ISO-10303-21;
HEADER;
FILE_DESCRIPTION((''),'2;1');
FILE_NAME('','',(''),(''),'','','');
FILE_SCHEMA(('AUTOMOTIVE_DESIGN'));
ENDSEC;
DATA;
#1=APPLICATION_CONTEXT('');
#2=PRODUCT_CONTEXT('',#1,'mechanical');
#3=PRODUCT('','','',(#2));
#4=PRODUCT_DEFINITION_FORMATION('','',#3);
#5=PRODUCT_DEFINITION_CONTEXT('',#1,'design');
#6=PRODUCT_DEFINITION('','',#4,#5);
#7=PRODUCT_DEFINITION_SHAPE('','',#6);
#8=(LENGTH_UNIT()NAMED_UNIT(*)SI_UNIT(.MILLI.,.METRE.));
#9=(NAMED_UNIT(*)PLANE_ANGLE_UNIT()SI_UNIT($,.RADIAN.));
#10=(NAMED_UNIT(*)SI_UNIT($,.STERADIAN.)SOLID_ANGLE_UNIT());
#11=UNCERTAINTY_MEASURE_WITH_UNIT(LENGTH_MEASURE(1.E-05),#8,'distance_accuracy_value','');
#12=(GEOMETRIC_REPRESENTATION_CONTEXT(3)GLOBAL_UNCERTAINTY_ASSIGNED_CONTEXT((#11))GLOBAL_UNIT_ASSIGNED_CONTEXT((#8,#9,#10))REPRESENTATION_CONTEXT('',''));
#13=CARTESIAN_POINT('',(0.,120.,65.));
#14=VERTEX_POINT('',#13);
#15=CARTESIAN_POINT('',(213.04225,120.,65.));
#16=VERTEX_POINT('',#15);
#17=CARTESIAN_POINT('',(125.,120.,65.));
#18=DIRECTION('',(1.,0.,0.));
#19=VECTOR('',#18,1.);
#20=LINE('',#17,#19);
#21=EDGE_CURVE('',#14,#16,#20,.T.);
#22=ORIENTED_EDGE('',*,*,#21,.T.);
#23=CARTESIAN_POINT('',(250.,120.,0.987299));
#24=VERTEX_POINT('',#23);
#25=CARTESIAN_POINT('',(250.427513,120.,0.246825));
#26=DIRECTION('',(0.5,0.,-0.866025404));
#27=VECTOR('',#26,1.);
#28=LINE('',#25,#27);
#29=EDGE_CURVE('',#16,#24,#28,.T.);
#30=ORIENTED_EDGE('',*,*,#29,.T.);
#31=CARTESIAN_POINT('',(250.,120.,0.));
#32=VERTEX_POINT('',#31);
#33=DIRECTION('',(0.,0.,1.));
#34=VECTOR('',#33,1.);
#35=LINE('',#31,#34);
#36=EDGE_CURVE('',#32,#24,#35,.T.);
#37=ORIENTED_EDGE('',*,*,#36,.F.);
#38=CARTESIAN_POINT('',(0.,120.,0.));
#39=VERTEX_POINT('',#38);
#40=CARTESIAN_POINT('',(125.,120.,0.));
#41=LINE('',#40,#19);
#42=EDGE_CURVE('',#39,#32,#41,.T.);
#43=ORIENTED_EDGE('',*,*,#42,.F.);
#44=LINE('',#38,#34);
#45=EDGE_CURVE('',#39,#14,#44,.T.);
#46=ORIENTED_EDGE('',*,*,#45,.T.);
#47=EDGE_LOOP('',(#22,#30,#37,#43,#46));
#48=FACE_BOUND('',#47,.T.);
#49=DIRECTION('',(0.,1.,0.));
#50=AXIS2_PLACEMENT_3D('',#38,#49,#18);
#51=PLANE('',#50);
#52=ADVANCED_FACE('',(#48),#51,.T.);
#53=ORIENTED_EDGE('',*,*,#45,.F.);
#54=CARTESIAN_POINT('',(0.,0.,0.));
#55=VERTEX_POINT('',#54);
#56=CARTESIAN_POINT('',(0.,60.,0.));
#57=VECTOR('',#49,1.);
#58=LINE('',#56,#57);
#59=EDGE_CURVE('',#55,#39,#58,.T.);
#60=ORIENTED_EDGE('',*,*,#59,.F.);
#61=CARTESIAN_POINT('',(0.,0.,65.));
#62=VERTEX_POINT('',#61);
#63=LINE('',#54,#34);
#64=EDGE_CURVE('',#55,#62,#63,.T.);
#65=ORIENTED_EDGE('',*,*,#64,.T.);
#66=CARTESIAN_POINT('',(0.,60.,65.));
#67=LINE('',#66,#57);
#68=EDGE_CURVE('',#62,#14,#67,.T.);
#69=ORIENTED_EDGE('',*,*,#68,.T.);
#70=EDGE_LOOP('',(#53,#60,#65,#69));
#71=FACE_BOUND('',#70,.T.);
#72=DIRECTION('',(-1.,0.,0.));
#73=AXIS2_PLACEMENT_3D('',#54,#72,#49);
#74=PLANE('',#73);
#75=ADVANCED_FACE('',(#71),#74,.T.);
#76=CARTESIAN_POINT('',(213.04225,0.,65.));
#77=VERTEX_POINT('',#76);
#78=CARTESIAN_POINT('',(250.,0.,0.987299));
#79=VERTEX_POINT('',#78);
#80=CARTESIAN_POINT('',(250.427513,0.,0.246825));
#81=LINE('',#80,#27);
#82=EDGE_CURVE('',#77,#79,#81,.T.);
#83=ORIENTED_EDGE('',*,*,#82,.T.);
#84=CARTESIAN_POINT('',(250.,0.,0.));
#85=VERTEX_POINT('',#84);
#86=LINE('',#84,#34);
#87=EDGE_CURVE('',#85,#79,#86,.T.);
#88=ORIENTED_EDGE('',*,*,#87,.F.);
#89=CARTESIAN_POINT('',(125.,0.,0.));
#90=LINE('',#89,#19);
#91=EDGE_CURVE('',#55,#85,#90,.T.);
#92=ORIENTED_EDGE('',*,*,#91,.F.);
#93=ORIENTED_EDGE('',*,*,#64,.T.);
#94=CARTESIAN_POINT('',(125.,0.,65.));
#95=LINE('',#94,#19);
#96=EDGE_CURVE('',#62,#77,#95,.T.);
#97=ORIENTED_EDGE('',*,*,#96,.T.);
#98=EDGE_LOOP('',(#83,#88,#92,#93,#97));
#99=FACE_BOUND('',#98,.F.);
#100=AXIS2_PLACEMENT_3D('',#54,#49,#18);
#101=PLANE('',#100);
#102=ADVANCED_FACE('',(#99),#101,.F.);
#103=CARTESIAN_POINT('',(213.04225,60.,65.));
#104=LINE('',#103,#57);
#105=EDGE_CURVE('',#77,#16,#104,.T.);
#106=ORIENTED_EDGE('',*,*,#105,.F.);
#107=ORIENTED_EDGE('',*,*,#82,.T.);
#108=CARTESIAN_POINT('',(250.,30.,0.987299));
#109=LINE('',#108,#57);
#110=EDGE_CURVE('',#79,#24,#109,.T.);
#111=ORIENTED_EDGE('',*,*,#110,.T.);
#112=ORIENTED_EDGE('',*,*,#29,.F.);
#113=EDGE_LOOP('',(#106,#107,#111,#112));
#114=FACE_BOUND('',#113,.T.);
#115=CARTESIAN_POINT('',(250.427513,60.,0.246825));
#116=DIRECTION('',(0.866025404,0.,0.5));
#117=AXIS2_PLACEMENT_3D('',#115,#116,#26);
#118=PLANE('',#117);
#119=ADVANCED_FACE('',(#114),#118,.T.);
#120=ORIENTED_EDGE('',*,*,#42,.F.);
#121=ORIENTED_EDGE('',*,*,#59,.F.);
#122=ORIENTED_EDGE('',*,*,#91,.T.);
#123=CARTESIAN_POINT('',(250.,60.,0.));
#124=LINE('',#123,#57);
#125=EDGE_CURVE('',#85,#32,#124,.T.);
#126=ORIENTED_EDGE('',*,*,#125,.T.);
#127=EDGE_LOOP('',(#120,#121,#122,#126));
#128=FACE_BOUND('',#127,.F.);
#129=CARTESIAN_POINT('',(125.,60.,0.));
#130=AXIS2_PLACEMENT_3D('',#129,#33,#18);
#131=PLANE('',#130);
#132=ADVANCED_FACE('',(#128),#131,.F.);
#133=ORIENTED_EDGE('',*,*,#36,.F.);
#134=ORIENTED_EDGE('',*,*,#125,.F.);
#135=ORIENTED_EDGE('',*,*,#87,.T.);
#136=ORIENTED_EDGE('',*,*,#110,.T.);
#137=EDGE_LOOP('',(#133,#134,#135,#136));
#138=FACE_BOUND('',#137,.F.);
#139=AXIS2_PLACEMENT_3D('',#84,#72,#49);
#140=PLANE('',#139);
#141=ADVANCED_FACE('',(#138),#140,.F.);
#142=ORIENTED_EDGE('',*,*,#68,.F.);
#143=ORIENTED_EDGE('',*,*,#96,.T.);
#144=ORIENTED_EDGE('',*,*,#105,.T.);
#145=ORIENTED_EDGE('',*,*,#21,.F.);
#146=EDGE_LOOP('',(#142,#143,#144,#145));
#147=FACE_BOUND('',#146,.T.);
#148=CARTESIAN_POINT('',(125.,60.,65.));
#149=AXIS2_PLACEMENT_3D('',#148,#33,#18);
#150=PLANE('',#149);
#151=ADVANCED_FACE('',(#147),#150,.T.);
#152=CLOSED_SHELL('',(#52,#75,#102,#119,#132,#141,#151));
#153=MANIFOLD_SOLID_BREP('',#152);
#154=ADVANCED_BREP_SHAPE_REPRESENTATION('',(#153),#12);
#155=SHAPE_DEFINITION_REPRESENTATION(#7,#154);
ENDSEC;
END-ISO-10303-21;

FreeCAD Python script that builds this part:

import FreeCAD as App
import Part
import Sketcher

V = App.Vector
Q = App.Units.Quantity


def add_polygon(sketch, points):
    """Adds a closed chain of lines whose ends are joined by coincident constraints."""
    first, n = sketch.GeometryCount, len(points)
    for a, b in zip(points, points[1:] + points[:1]):
        sketch.addGeometry(Part.LineSegment(App.Vector(*a, 0), App.Vector(*b, 0)), False)
    for i in range(n):
        sketch.addConstraint(Sketcher.Constraint("Coincident", first + i, 2, first + (i + 1) % n, 1))

doc = App.newDocument("Part")
body = doc.addObject("PartDesign::Body", "Body")

# Sketch on XY plane
sketch1 = body.newObject("Sketcher::SketchObject", "Sketch")
sketch1.AttachmentSupport = (doc.getObject("XY_Plane"), [""])
sketch1.MapMode = "FlatFace"
add_polygon(sketch1, [(0, 120), (0, 0), (250, 0), (250, 120)])  # lines 0-3
sketch1.addConstraint([
    Sketcher.Constraint("Vertical", 0),
    Sketcher.Constraint("Horizontal", 1),
    Sketcher.Constraint("Vertical", 2),
    Sketcher.Constraint("Horizontal", 3),
    Sketcher.Constraint("Coincident", 0, 2, -1, 1),
    Sketcher.Constraint("DistanceX", 1, 1, 1, 2, Q("250 mm")),
    Sketcher.Constraint("DistanceY", 0, 2, 0, 1, Q("120 mm")),
])
pad1 = body.newObject("PartDesign::Pad", "Pad")
pad1.Profile = sketch1
pad1.Length = 65
body2 = doc.addObject("PartDesign::Body", "Body001")
doc.recompute()

body.Placement = App.Placement(V(187.927513, 0, 108.5), App.Rotation(V(0, 1, 0), 60))
boolean = body2.newObject("PartDesign::Boolean", "Boolean")
boolean.Type = "Fuse"
boolean.addObjects([body])
body3 = doc.addObject("PartDesign::Body", "Body002")

# Sketch on XY plane
sketch2 = body3.newObject("Sketcher::SketchObject", "Sketch001")
sketch2.AttachmentSupport = (doc.getObject("XY_Plane002"), [""])
sketch2.MapMode = "FlatFace"
add_polygon(sketch2, [(0, 120), (0, 0), (250, 0), (250, 120)])  # lines 0-3
sketch2.addConstraint([
    Sketcher.Constraint("Vertical", 0),
    Sketcher.Constraint("Horizontal", 1),
    Sketcher.Constraint("Vertical", 2),
    Sketcher.Constraint("Horizontal", 3),
    Sketcher.Constraint("Coincident", 0, 2, -1, 1),
    Sketcher.Constraint("DistanceX", 1, 1, 1, 2, Q("250 mm")),
    Sketcher.Constraint("DistanceY", 0, 2, 0, 1, Q("120 mm")),
])
pad2 = body3.newObject("PartDesign::Pad", "Pad001")
pad2.Profile = sketch2
pad2.Length = 65
doc.recompute()

boolean2 = body3.newObject("PartDesign::Boolean", "Boolean001")
boolean2.Type = "Cut"
boolean2.addObjects([body2])

doc.recompute()
